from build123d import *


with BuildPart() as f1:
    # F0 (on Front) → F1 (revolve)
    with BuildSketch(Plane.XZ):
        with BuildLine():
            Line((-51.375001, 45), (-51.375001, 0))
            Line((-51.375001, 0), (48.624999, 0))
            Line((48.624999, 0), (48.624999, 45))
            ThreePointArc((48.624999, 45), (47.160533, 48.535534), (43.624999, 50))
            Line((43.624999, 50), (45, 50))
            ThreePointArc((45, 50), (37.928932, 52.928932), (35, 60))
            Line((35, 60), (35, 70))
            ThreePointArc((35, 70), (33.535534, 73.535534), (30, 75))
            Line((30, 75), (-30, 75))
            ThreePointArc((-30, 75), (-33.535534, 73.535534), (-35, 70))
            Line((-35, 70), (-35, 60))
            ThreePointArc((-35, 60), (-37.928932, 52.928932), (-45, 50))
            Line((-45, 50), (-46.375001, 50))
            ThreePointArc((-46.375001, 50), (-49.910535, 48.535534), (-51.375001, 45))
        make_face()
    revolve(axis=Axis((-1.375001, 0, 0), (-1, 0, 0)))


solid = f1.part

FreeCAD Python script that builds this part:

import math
import FreeCAD as App
import Part
import Sketcher
Q = App.Units.Quantity

doc = App.newDocument("Part")
params = doc.addObject("Spreadsheet::Sheet", "Params")
for row, (alias, value) in enumerate([
    ("sketch1_radius", "5 mm"),
    ("sketch1_radius2", "9.999999 mm"),
    ("sketch1_width", "100 mm"),
    ("sketch1_height", "45 mm"),
    ("sketch1_height2", "10 mm"),
    ("revolution_angle", "360 deg"),
], start=1):
    params.set(f"A{row}", alias)
    params.set(f"B{row}", "=" + value)
    params.setAlias(f"B{row}", alias)

body = doc.addObject("PartDesign::Body", "Body")

# Sketch on XZ plane
sketch1 = body.newObject("Sketcher::SketchObject", "Sketch")
sketch1.AttachmentSupport = (doc.getObject("XZ_Plane"), [""])
sketch1.MapMode = "FlatFace"
sketch1.addGeometry(Part.LineSegment(App.Vector(-51.4, 45, 0), App.Vector(-51.4, 0, 0)), False)
sketch1.addGeometry(Part.LineSegment(App.Vector(-51.4, 0, 0), App.Vector(48.6, 0, 0)), False)
sketch1.addGeometry(Part.LineSegment(App.Vector(48.6, 0, 0), App.Vector(48.6, 45, 0)), False)
sketch1.addGeometry(Part.ArcOfCircle(Part.Circle(App.Vector(43.6, 45, 0), App.Vector(0, 0, 1), 5), math.radians(0), math.radians(90)), False)
sketch1.addGeometry(Part.LineSegment(App.Vector(43.6, 50, 0), App.Vector(45, 50, 0)), False)
sketch1.addGeometry(Part.ArcOfCircle(Part.Circle(App.Vector(45, 60, 0), App.Vector(0, 0, 1), 10), math.radians(180), math.radians(270)), False)
sketch1.addGeometry(Part.LineSegment(App.Vector(35, 60, 0), App.Vector(35, 70, 0)), False)
sketch1.addGeometry(Part.ArcOfCircle(Part.Circle(App.Vector(30, 70, 0), App.Vector(0, 0, 1), 5), math.radians(0), math.radians(90)), False)
sketch1.addGeometry(Part.LineSegment(App.Vector(30, 75, 0), App.Vector(-30, 75, 0)), False)
sketch1.addGeometry(Part.ArcOfCircle(Part.Circle(App.Vector(-30, 70, 0), App.Vector(0, 0, 1), 5), math.radians(90), math.radians(180)), False)
sketch1.addGeometry(Part.LineSegment(App.Vector(-35, 70, 0), App.Vector(-35, 60, 0)), False)
sketch1.addGeometry(Part.ArcOfCircle(Part.Circle(App.Vector(-45, 60, 0), App.Vector(0, 0, 1), 10), math.radians(-90), math.radians(0)), False)
sketch1.addGeometry(Part.LineSegment(App.Vector(-45, 50, 0), App.Vector(-46.4, 50, 0)), False)
sketch1.addGeometry(Part.ArcOfCircle(Part.Circle(App.Vector(-46.4, 45, 0), App.Vector(0, 0, 1), 5), math.radians(90), math.radians(180)), False)
sketch1.addConstraint(Sketcher.Constraint("Coincident", 0, 2, 1, 1))
sketch1.addConstraint(Sketcher.Constraint("Coincident", 1, 2, 2, 1))
sketch1.addConstraint(Sketcher.Constraint("Tangent", 2, 2, 3, 1))
sketch1.addConstraint(Sketcher.Constraint("Tangent", 3, 2, 4, 1))
sketch1.addConstraint(Sketcher.Constraint("Tangent", 4, 2, 5, 2))
sketch1.addConstraint(Sketcher.Constraint("Tangent", 5, 1, 6, 1))
sketch1.addConstraint(Sketcher.Constraint("Tangent", 6, 2, 7, 1))
sketch1.addConstraint(Sketcher.Constraint("Tangent", 7, 2, 8, 1))
sketch1.addConstraint(Sketcher.Constraint("Tangent", 8, 2, 9, 1))
sketch1.addConstraint(Sketcher.Constraint("Tangent", 9, 2, 10, 1))
sketch1.addConstraint(Sketcher.Constraint("Tangent", 10, 2, 11, 2))
sketch1.addConstraint(Sketcher.Constraint("Tangent", 11, 1, 12, 1))
sketch1.addConstraint(Sketcher.Constraint("Tangent", 12, 2, 13, 1))
sketch1.addConstraint(Sketcher.Constraint("Tangent", 13, 2, 0, 1))
sketch1.addConstraint(Sketcher.Constraint("Vertical", 0))
sketch1.addConstraint(Sketcher.Constraint("Horizontal", 1))
sketch1.addConstraint(Sketcher.Constraint("Vertical", 2))
sketch1.addConstraint(Sketcher.Constraint("Horizontal", 4))
sketch1.addConstraint(Sketcher.Constraint("Vertical", 6))
sketch1.addConstraint(Sketcher.Constraint("Horizontal", 8))
sketch1.addConstraint(Sketcher.Constraint("Vertical", 10))
sketch1.addConstraint(Sketcher.Constraint("Horizontal", 12))
sketch1.addConstraint(Sketcher.Constraint("Equal", 3, 7))
sketch1.addConstraint(Sketcher.Constraint("Equal", 7, 9))
sketch1.addConstraint(Sketcher.Constraint("Equal", 5, 11))
sketch1.addConstraint(Sketcher.Constraint("Equal", 9, 13))
sketch1.addConstraint(Sketcher.Constraint("Symmetric", 5, 3, 11, 3, -2))
sketch1.addConstraint(Sketcher.Constraint("PointOnObject", 0, 2, -1))
sketch1.addConstraint(Sketcher.Constraint("Equal", 4, 12))
sketch1.addConstraint(Sketcher.Constraint("Radius", 3, Q("5 mm")))
sketch1.addConstraint(Sketcher.Constraint("Radius", 5, Q("9.999999 mm")))
sketch1.addConstraint(Sketcher.Constraint("DistanceX", 1, 1, 1, 2, Q("100 mm")))
sketch1.addConstraint(Sketcher.Constraint("DistanceY", 0, 2, 0, 1, Q("45 mm")))
sketch1.addConstraint(Sketcher.Constraint("DistanceY", 6, 1, 6, 2, Q("10 mm")))
sketch1.addConstraint(Sketcher.Constraint("DistanceX", 4, 1, 4, 2, Q("1.375001 mm")))
sketch1.setExpression("Constraints[29]", "Params.sketch1_radius")
sketch1.setExpression("Constraints[30]", "Params.sketch1_radius2")
sketch1.setExpression("Constraints[31]", "Params.sketch1_width")
sketch1.setExpression("Constraints[32]", "Params.sketch1_height")
sketch1.setExpression("Constraints[33]", "Params.sketch1_height2")
revolution = body.newObject("PartDesign::Revolution", "Revolution")
revolution.Profile = sketch1
revolution.ReferenceAxis = (sketch1, ["H_Axis"])
revolution.setExpression("Angle", "Params.revolution_angle")

doc.recompute()
